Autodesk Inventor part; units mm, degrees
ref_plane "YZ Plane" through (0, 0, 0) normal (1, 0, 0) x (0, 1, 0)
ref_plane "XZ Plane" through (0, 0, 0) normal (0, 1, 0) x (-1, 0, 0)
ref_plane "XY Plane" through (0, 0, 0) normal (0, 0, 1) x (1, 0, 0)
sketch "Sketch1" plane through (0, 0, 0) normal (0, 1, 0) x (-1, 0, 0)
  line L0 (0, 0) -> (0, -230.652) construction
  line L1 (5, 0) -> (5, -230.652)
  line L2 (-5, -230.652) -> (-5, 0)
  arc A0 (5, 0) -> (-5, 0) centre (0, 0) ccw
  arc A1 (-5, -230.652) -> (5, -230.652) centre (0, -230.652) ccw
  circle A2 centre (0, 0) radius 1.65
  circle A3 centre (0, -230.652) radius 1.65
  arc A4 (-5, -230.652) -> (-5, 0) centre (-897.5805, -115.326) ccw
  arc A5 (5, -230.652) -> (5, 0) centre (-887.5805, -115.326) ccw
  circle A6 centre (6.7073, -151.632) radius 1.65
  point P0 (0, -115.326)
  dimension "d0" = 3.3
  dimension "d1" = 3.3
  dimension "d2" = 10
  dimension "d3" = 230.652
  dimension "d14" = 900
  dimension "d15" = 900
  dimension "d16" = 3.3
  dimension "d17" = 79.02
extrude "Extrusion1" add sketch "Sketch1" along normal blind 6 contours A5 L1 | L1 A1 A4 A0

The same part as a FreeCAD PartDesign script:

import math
import FreeCAD as App
import Part
import Sketcher
from FreeCAD import Vector
Q = App.Units.Quantity

doc = App.newDocument("Part")
body = doc.addObject("PartDesign::Body", "Body")

# Sketch on XZ plane
sketch1 = body.newObject("Sketcher::SketchObject", "Sketch")
sketch1.AttachmentSupport = (doc.getObject("XZ_Plane"), [""])
sketch1.MapMode = "FlatFace"
sketch1.addGeometry([
    Part.ArcOfCircle(Part.Circle(Vector(887.6, -115.3, 0), Vector(0, 0, 1), 900), math.radians(172.64), math.radians(187.36)),  # 0
    Part.ArcOfCircle(Part.Circle(Vector(0, 0, 0), Vector(0, 0, 1), 5), math.radians(0), math.radians(180)),  # 1
    Part.ArcOfCircle(Part.Circle(Vector(897.6, -115.3, 0), Vector(0, 0, 1), 900), math.radians(172.64), math.radians(187.36)),  # 2
    Part.ArcOfCircle(Part.Circle(Vector(0, -230.7, 0), Vector(0, 0, 1), 5), math.radians(180), math.radians(360)),  # 3
    Part.Circle(Vector(-6.7, -151.6, 0), Vector(0, 0, 1), 1.6),  # 4
    Part.Circle(Vector(0, 0, 0), Vector(0, 0, 1), 1.6),  # 5
    Part.Circle(Vector(0, -230.7, 0), Vector(0, 0, 1), 1.6),  # 6
], False)
sketch1.addConstraint([
    Sketcher.Constraint("Coincident", 0, 1, 1, 2),
    Sketcher.Constraint("Coincident", 1, 1, 2, 1),
    Sketcher.Constraint("Coincident", 2, 2, 3, 2),
    Sketcher.Constraint("Coincident", 3, 1, 0, 2),
    Sketcher.Constraint("Coincident", 1, 3, -1, 1),
    Sketcher.Constraint("Coincident", 5, 3, -1, 1),
    Sketcher.Constraint("Coincident", 6, 3, 3, 3),
    Sketcher.Constraint("Equal", 0, 2),
    Sketcher.Constraint("Equal", 1, 3),
    Sketcher.Constraint("Equal", 4, 5),
    Sketcher.Constraint("Equal", 5, 6),
    Sketcher.Constraint("Symmetric", 2, 2, 3, 1, -2),
    Sketcher.Constraint("PointOnObject", 0, 1, -1),
    Sketcher.Constraint("PointOnObject", 1, 1, -1),
    Sketcher.Constraint("Radius", 0, Q("900 mm")),
    Sketcher.Constraint("Radius", 1, Q("5 mm")),
    Sketcher.Constraint("Diameter", 4, Q("3.3 mm")),
    Sketcher.Constraint("DistanceY", 3, 3, 4, 3, Q("79.02 mm")),
    Sketcher.Constraint("DistanceY", 3, 1, 4, 3, Q("79.02 mm")),
    Sketcher.Constraint("DistanceY", 3, 3, -1, 1, Q("230.652 mm")),
    Sketcher.Constraint("DistanceX", 4, 3, -1, 1, Q("6.7073 mm")),
])
pad1 = body.newObject("PartDesign::Pad", "Pad")
pad1.Profile = sketch1
pad1.Length = 6
pad1.Reversed = True

doc.recompute()
